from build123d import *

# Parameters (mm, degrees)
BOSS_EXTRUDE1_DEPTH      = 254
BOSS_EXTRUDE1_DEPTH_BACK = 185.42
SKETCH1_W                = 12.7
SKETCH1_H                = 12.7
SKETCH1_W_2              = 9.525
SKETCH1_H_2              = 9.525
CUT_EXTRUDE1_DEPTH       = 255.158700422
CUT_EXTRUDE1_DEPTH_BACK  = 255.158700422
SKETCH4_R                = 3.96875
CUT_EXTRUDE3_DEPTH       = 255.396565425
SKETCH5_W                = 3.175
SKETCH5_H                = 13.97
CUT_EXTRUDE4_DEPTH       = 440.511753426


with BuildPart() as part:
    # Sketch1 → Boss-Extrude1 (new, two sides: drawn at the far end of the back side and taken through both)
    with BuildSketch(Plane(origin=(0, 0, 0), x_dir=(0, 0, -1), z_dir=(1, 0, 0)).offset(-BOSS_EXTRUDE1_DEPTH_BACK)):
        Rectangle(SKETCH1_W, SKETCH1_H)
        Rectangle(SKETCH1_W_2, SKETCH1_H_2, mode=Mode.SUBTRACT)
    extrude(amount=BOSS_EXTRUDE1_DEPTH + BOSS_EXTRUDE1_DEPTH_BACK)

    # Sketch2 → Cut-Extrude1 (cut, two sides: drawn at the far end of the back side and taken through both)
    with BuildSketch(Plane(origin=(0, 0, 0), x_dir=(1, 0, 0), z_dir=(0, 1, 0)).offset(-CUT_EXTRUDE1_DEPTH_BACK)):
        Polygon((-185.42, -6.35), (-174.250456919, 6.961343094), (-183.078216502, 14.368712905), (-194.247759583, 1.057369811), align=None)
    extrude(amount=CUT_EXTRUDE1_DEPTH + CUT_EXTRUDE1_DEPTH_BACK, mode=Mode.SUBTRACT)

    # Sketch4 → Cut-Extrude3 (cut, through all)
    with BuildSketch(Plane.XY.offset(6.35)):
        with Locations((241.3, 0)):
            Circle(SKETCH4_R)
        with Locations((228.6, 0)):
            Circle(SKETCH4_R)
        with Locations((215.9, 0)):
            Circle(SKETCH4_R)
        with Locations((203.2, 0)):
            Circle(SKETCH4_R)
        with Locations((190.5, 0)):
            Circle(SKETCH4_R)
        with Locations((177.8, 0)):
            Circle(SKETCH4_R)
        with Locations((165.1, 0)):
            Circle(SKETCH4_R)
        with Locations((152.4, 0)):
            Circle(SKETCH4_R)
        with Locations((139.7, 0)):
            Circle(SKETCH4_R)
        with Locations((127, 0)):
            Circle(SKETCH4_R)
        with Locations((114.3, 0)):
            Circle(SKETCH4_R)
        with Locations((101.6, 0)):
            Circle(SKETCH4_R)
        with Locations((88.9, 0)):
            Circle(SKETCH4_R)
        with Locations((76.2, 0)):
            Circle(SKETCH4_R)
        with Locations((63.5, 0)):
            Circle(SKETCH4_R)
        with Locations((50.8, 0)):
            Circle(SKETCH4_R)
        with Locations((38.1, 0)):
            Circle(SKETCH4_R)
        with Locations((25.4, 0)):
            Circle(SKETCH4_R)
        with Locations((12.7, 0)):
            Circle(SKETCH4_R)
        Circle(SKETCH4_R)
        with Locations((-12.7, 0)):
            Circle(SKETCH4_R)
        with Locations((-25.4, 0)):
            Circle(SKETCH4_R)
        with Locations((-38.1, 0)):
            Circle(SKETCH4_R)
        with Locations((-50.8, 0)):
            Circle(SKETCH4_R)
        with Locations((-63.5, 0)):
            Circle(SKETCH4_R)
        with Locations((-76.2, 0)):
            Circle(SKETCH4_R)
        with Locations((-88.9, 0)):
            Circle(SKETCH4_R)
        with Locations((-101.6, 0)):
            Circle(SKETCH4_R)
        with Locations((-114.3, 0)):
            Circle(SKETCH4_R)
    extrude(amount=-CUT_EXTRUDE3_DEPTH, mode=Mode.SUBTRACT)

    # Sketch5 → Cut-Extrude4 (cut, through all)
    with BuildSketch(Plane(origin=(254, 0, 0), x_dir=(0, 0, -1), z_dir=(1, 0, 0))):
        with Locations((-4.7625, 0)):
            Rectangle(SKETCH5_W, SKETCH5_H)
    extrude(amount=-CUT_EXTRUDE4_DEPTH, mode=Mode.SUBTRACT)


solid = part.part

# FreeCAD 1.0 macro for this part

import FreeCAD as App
import Part
import Sketcher
Q = App.Units.Quantity

doc = App.newDocument("Part")
body = doc.addObject("PartDesign::Body", "Body")

sketch1 = body.newObject("Sketcher::SketchObject", "Sketch")
sketch1.AttachmentSupport = (doc.getObject("YZ_Plane"), [""])
sketch1.MapMode = "FlatFace"
sketch1.addGeometry(Part.LineSegment(App.Vector(6, 6, 0), App.Vector(-6, 6, 0)), False)
sketch1.addGeometry(Part.LineSegment(App.Vector(-6, 6, 0), App.Vector(-6, -6, 0)), False)
sketch1.addGeometry(Part.LineSegment(App.Vector(-6, -6, 0), App.Vector(6, -6, 0)), False)
sketch1.addGeometry(Part.LineSegment(App.Vector(6, -6, 0), App.Vector(6, 6, 0)), False)
sketch1.addGeometry(Part.LineSegment(App.Vector(-5, -5, 0), App.Vector(-5, 5, 0)), False)
sketch1.addGeometry(Part.LineSegment(App.Vector(-5, 5, 0), App.Vector(5, 5, 0)), False)
sketch1.addGeometry(Part.LineSegment(App.Vector(5, 5, 0), App.Vector(5, -5, 0)), False)
sketch1.addGeometry(Part.LineSegment(App.Vector(5, -5, 0), App.Vector(-5, -5, 0)), False)
sketch1.addConstraint(Sketcher.Constraint("Coincident", 0, 2, 1, 1))
sketch1.addConstraint(Sketcher.Constraint("Coincident", 1, 2, 2, 1))
sketch1.addConstraint(Sketcher.Constraint("Coincident", 2, 2, 3, 1))
sketch1.addConstraint(Sketcher.Constraint("Coincident", 3, 2, 0, 1))
sketch1.addConstraint(Sketcher.Constraint("Coincident", 4, 2, 5, 1))
sketch1.addConstraint(Sketcher.Constraint("Coincident", 5, 2, 6, 1))
sketch1.addConstraint(Sketcher.Constraint("Coincident", 6, 2, 7, 1))
sketch1.addConstraint(Sketcher.Constraint("Coincident", 7, 2, 4, 1))
sketch1.addConstraint(Sketcher.Constraint("Horizontal", 0))
sketch1.addConstraint(Sketcher.Constraint("Vertical", 1))
sketch1.addConstraint(Sketcher.Constraint("Horizontal", 2))
sketch1.addConstraint(Sketcher.Constraint("Vertical", 3))
sketch1.addConstraint(Sketcher.Constraint("Vertical", 4))
sketch1.addConstraint(Sketcher.Constraint("Horizontal", 5))
sketch1.addConstraint(Sketcher.Constraint("Vertical", 6))
sketch1.addConstraint(Sketcher.Constraint("Horizontal", 7))
sketch1.addConstraint(Sketcher.Constraint("Symmetric", 0, 2, 2, 2, -1, 1))
sketch1.addConstraint(Sketcher.Constraint("Symmetric", 4, 2, 6, 2, -1, 1))
sketch1.addConstraint(Sketcher.Constraint("Equal", 2, 1))
sketch1.addConstraint(Sketcher.Constraint("Equal", 7, 4))
sketch1.addConstraint(Sketcher.Constraint("DistanceX", 0, 2, 0, 1, Q("0.5 in")))
sketch1.addConstraint(Sketcher.Constraint("DistanceX", 5, 1, 5, 2, Q("0.375 in")))
pad1 = body.newObject("PartDesign::Pad", "Pad")
pad1.Profile = sketch1
pad1.Type = "TwoLengths"
pad1.Length = Q("10 in")
pad1.Length2 = Q("7.3 in")

sketch2 = body.newObject("Sketcher::SketchObject", "Sketch001")
sketch2.AttachmentSupport = (doc.getObject("XZ_Plane"), [""])
sketch2.MapMode = "FlatFace"
sketch2.addGeometry(Part.LineSegment(App.Vector(-185, 6, 0), App.Vector(-174, -7, 0)), False)
sketch2.addGeometry(Part.LineSegment(App.Vector(-174, -7, 0), App.Vector(-183, -14, 0)), False)
sketch2.addGeometry(Part.LineSegment(App.Vector(-183, -14, 0), App.Vector(-194, -1, 0)), False)
sketch2.addGeometry(Part.LineSegment(App.Vector(-194, -1, 0), App.Vector(-185, 6, 0)), False)
sketch2.addConstraint(Sketcher.Constraint("Coincident", 0, 2, 1, 1))
sketch2.addConstraint(Sketcher.Constraint("Coincident", 1, 2, 2, 1))
sketch2.addConstraint(Sketcher.Constraint("Coincident", 2, 2, 3, 1))
sketch2.addConstraint(Sketcher.Constraint("Coincident", 3, 2, 0, 1))
sketch2.addConstraint(Sketcher.Constraint("Perpendicular", 0, 1))
sketch2.addConstraint(Sketcher.Constraint("Perpendicular", 1, 2))
sketch2.addConstraint(Sketcher.Constraint("Perpendicular", 2, 3))
sketch2.addConstraint(Sketcher.Constraint("Angle", 0, Q("-50 deg")))
sketch2.addConstraint(Sketcher.Constraint("DistanceX", 3, 2, -1, 1, Q("7.3 in")))
sketch2.addConstraint(Sketcher.Constraint("DistanceY", -1, 1, 3, 2, Q("0.25 in")))
sketch2.addConstraint(Sketcher.Constraint("Distance", 1, Q("11.523822 mm")))
sketch2.addConstraint(Sketcher.Constraint("Distance", 0, Q("17.376724 mm")))
pocket1 = body.newObject("PartDesign::Pocket", "Pocket")
pocket1.Profile = sketch2
pocket1.Type = "ThroughAll"
pocket1.Midplane = True

sketch3 = body.newObject("Sketcher::SketchObject", "Sketch002")
sketch3.AttachmentSupport = (doc.getObject("XY_Plane"), [""])
sketch3.MapMode = "FlatFace"
sketch3.AttachmentOffset = App.Placement(App.Vector(0, 0, 0.25 * 25.4), App.Rotation())
sketch3.addGeometry(Part.Circle(App.Vector(241.3, 0, 0), App.Vector(0, 0, 1), 4), False)
sketch3.addGeometry(Part.Circle(App.Vector(228.6, 0, 0), App.Vector(0, 0, 1), 4), False)
sketch3.addGeometry(Part.Circle(App.Vector(215.9, 0, 0), App.Vector(0, 0, 1), 4), False)
sketch3.addGeometry(Part.Circle(App.Vector(203.2, 0, 0), App.Vector(0, 0, 1), 4), False)
sketch3.addGeometry(Part.Circle(App.Vector(190.5, 0, 0), App.Vector(0, 0, 1), 4), False)
sketch3.addGeometry(Part.Circle(App.Vector(177.8, 0, 0), App.Vector(0, 0, 1), 4), False)
sketch3.addGeometry(Part.Circle(App.Vector(165.1, 0, 0), App.Vector(0, 0, 1), 4), False)
sketch3.addGeometry(Part.Circle(App.Vector(152.4, 0, 0), App.Vector(0, 0, 1), 4), False)
sketch3.addGeometry(Part.Circle(App.Vector(139.7, 0, 0), App.Vector(0, 0, 1), 4), False)
sketch3.addGeometry(Part.Circle(App.Vector(127, 0, 0), App.Vector(0, 0, 1), 4), False)
sketch3.addGeometry(Part.Circle(App.Vector(114.3, 0, 0), App.Vector(0, 0, 1), 4), False)
sketch3.addGeometry(Part.Circle(App.Vector(101.6, 0, 0), App.Vector(0, 0, 1), 4), False)
sketch3.addGeometry(Part.Circle(App.Vector(88.9, 0, 0), App.Vector(0, 0, 1), 4), False)
sketch3.addGeometry(Part.Circle(App.Vector(76.2, 0, 0), App.Vector(0, 0, 1), 4), False)
sketch3.addGeometry(Part.Circle(App.Vector(63.5, 0, 0), App.Vector(0, 0, 1), 4), False)
sketch3.addGeometry(Part.Circle(App.Vector(50.8, 0, 0), App.Vector(0, 0, 1), 4), False)
sketch3.addGeometry(Part.Circle(App.Vector(38.1, 0, 0), App.Vector(0, 0, 1), 4), False)
sketch3.addGeometry(Part.Circle(App.Vector(25.4, 0, 0), App.Vector(0, 0, 1), 4), False)
sketch3.addGeometry(Part.Circle(App.Vector(12.7, 0, 0), App.Vector(0, 0, 1), 4), False)
sketch3.addGeometry(Part.Circle(App.Vector(0, 0, 0), App.Vector(0, 0, 1), 4), False)
sketch3.addGeometry(Part.Circle(App.Vector(-12.7, 0, 0), App.Vector(0, 0, 1), 4), False)
sketch3.addGeometry(Part.Circle(App.Vector(-25.4, 0, 0), App.Vector(0, 0, 1), 4), False)
sketch3.addGeometry(Part.Circle(App.Vector(-38.1, 0, 0), App.Vector(0, 0, 1), 4), False)
sketch3.addGeometry(Part.Circle(App.Vector(-50.8, 0, 0), App.Vector(0, 0, 1), 4), False)
sketch3.addGeometry(Part.Circle(App.Vector(-63.5, 0, 0), App.Vector(0, 0, 1), 4), False)
sketch3.addGeometry(Part.Circle(App.Vector(-76.2, 0, 0), App.Vector(0, 0, 1), 4), False)
sketch3.addGeometry(Part.Circle(App.Vector(-88.9, 0, 0), App.Vector(0, 0, 1), 4), False)
sketch3.addGeometry(Part.Circle(App.Vector(-101.6, 0, 0), App.Vector(0, 0, 1), 4), False)
sketch3.addGeometry(Part.Circle(App.Vector(-114.3, 0, 0), App.Vector(0, 0, 1), 4), False)
sketch3.addConstraint(Sketcher.Constraint("Coincident", 19, 3, -1, 1))
sketch3.addConstraint(Sketcher.Constraint("Equal", 0, 1))
sketch3.addConstraint(Sketcher.Constraint("Equal", 1, 2))
sketch3.addConstraint(Sketcher.Constraint("Equal", 2, 3))
sketch3.addConstraint(Sketcher.Constraint("Equal", 3, 4))
sketch3.addConstraint(Sketcher.Constraint("Equal", 4, 5))
sketch3.addConstraint(Sketcher.Constraint("Equal", 5, 6))
sketch3.addConstraint(Sketcher.Constraint("Equal", 6, 7))
sketch3.addConstraint(Sketcher.Constraint("Equal", 7, 8))
sketch3.addConstraint(Sketcher.Constraint("Equal", 8, 9))
sketch3.addConstraint(Sketcher.Constraint("Equal", 9, 10))
sketch3.addConstraint(Sketcher.Constraint("Equal", 10, 11))
sketch3.addConstraint(Sketcher.Constraint("Equal", 11, 12))
sketch3.addConstraint(Sketcher.Constraint("Equal", 12, 13))
sketch3.addConstraint(Sketcher.Constraint("Equal", 13, 14))
sketch3.addConstraint(Sketcher.Constraint("Equal", 14, 15))
sketch3.addConstraint(Sketcher.Constraint("Equal", 15, 16))
sketch3.addConstraint(Sketcher.Constraint("Equal", 16, 17))
sketch3.addConstraint(Sketcher.Constraint("Equal", 17, 18))
sketch3.addConstraint(Sketcher.Constraint("Equal", 18, 19))
sketch3.addConstraint(Sketcher.Constraint("Equal", 19, 20))
sketch3.addConstraint(Sketcher.Constraint("Equal", 20, 21))
sketch3.addConstraint(Sketcher.Constraint("Equal", 21, 22))
sketch3.addConstraint(Sketcher.Constraint("Equal", 22, 23))
sketch3.addConstraint(Sketcher.Constraint("Equal", 23, 24))
sketch3.addConstraint(Sketcher.Constraint("Equal", 24, 25))
sketch3.addConstraint(Sketcher.Constraint("Equal", 25, 26))
sketch3.addConstraint(Sketcher.Constraint("Equal", 26, 27))
sketch3.addConstraint(Sketcher.Constraint("Equal", 27, 28))
sketch3.addConstraint(Sketcher.Constraint("Symmetric", 18, 3, 20, 3, -1, 1))
sketch3.addConstraint(Sketcher.Constraint("Symmetric", 17, 3, 21, 3, -1, 1))
sketch3.addConstraint(Sketcher.Constraint("Symmetric", 16, 3, 22, 3, -1, 1))
sketch3.addConstraint(Sketcher.Constraint("Symmetric", 15, 3, 23, 3, -1, 1))
sketch3.addConstraint(Sketcher.Constraint("Symmetric", 14, 3, 24, 3, -1, 1))
sketch3.addConstraint(Sketcher.Constraint("Symmetric", 13, 3, 25, 3, -1, 1))
sketch3.addConstraint(Sketcher.Constraint("Symmetric", 12, 3, 26, 3, -1, 1))
sketch3.addConstraint(Sketcher.Constraint("Symmetric", 11, 3, 27, 3, -1, 1))
sketch3.addConstraint(Sketcher.Constraint("Symmetric", 10, 3, 28, 3, -1, 1))
sketch3.addConstraint(Sketcher.Constraint("PointOnObject", 0, 3, -1))
sketch3.addConstraint(Sketcher.Constraint("PointOnObject", 1, 3, -1))
sketch3.addConstraint(Sketcher.Constraint("PointOnObject", 2, 3, -1))
sketch3.addConstraint(Sketcher.Constraint("PointOnObject", 3, 3, -1))
sketch3.addConstraint(Sketcher.Constraint("PointOnObject", 4, 3, -1))
sketch3.addConstraint(Sketcher.Constraint("PointOnObject", 5, 3, -1))
sketch3.addConstraint(Sketcher.Constraint("PointOnObject", 6, 3, -1))
sketch3.addConstraint(Sketcher.Constraint("PointOnObject", 7, 3, -1))
sketch3.addConstraint(Sketcher.Constraint("PointOnObject", 8, 3, -1))
sketch3.addConstraint(Sketcher.Constraint("PointOnObject", 9, 3, -1))
sketch3.addConstraint(Sketcher.Constraint("PointOnObject", 10, 3, -1))
sketch3.addConstraint(Sketcher.Constraint("PointOnObject", 11, 3, -1))
sketch3.addConstraint(Sketcher.Constraint("PointOnObject", 12, 3, -1))
sketch3.addConstraint(Sketcher.Constraint("PointOnObject", 13, 3, -1))
sketch3.addConstraint(Sketcher.Constraint("PointOnObject", 14, 3, -1))
sketch3.addConstraint(Sketcher.Constraint("PointOnObject", 15, 3, -1))
sketch3.addConstraint(Sketcher.Constraint("PointOnObject", 16, 3, -1))
sketch3.addConstraint(Sketcher.Constraint("PointOnObject", 17, 3, -1))
sketch3.addConstraint(Sketcher.Constraint("PointOnObject", 18, 3, -1))
sketch3.addConstraint(Sketcher.Constraint("Diameter", 0, Q("0.3125 in")))
sketch3.addConstraint(Sketcher.Constraint("DistanceX", -1, 1, 1, 3, Q("9 in")))
sketch3.addConstraint(Sketcher.Constraint("DistanceX", -1, 1, 3, 3, Q("8 in")))
sketch3.addConstraint(Sketcher.Constraint("DistanceX", -1, 1, 5, 3, Q("7 in")))
sketch3.addConstraint(Sketcher.Constraint("DistanceX", -1, 1, 7, 3, Q("6 in")))
sketch3.addConstraint(Sketcher.Constraint("DistanceX", -1, 1, 9, 3, Q("5 in")))
sketch3.addConstraint(Sketcher.Constraint("DistanceX", -1, 1, 11, 3, Q("4 in")))
sketch3.addConstraint(Sketcher.Constraint("DistanceX", -1, 1, 13, 3, Q("3 in")))
sketch3.addConstraint(Sketcher.Constraint("DistanceX", -1, 1, 15, 3, Q("2 in")))
sketch3.addConstraint(Sketcher.Constraint("DistanceX", -1, 1, 17, 3, Q("1 in")))
sketch3.addConstraint(Sketcher.Constraint("DistanceX", 2, 3, 0, 3, Q("1 in")))
sketch3.addConstraint(Sketcher.Constraint("DistanceX", 4, 3, 2, 3, Q("1 in")))
sketch3.addConstraint(Sketcher.Constraint("DistanceX", 6, 3, 4, 3, Q("1 in")))
sketch3.addConstraint(Sketcher.Constraint("DistanceX", 8, 3, 6, 3, Q("1 in")))
sketch3.addConstraint(Sketcher.Constraint("DistanceX", 10, 3, 8, 3, Q("1 in")))
sketch3.addConstraint(Sketcher.Constraint("DistanceX", 12, 3, 10, 3, Q("1 in")))
sketch3.addConstraint(Sketcher.Constraint("DistanceX", 14, 3, 12, 3, Q("1 in")))
sketch3.addConstraint(Sketcher.Constraint("DistanceX", 16, 3, 14, 3, Q("1 in")))
sketch3.addConstraint(Sketcher.Constraint("DistanceX", 18, 3, 16, 3, Q("1 in")))
sketch3.addConstraint(Sketcher.Constraint("DistanceX", 20, 3, 18, 3, Q("1 in")))
pocket2 = body.newObject("PartDesign::Pocket", "Pocket001")
pocket2.Profile = sketch3
pocket2.Type = "ThroughAll"

sketch4 = body.newObject("Sketcher::SketchObject", "Sketch003")
sketch4.AttachmentSupport = (doc.getObject("YZ_Plane"), [""])
sketch4.MapMode = "FlatFace"
sketch4.AttachmentOffset = App.Placement(App.Vector(0, 0, 10 * 25.4), App.Rotation())
sketch4.addGeometry(Part.LineSegment(App.Vector(7, 6.3, 0), App.Vector(-7, 6.3, 0)), False)
sketch4.addGeometry(Part.LineSegment(App.Vector(-7, 6.3, 0), App.Vector(-7, 3.2, 0)), False)
sketch4.addGeometry(Part.LineSegment(App.Vector(-7, 3.2, 0), App.Vector(7, 3.2, 0)), False)
sketch4.addGeometry(Part.LineSegment(App.Vector(7, 3.2, 0), App.Vector(7, 6.3, 0)), False)
sketch4.addConstraint(Sketcher.Constraint("Coincident", 0, 2, 1, 1))
sketch4.addConstraint(Sketcher.Constraint("Coincident", 1, 2, 2, 1))
sketch4.addConstraint(Sketcher.Constraint("Coincident", 2, 2, 3, 1))
sketch4.addConstraint(Sketcher.Constraint("Coincident", 3, 2, 0, 1))
sketch4.addConstraint(Sketcher.Constraint("Horizontal", 0))
sketch4.addConstraint(Sketcher.Constraint("Vertical", 1))
sketch4.addConstraint(Sketcher.Constraint("Horizontal", 2))
sketch4.addConstraint(Sketcher.Constraint("Vertical", 3))
sketch4.addConstraint(Sketcher.Constraint("DistanceX", 0, 2, 0, 1, Q("0.55 in")))
sketch4.addConstraint(Sketcher.Constraint("DistanceY", 1, 2, 1, 1, Q("0.125 in")))
sketch4.addConstraint(Sketcher.Constraint("DistanceY", -1, 1, 0, 2, Q("0.25 in")))
sketch4.addConstraint(Sketcher.Constraint("DistanceX", 0, 2, -1, 1, Q("0.275 in")))
pocket3 = body.newObject("PartDesign::Pocket", "Pocket002")
pocket3.Profile = sketch4
pocket3.Type = "ThroughAll"

doc.recompute()
